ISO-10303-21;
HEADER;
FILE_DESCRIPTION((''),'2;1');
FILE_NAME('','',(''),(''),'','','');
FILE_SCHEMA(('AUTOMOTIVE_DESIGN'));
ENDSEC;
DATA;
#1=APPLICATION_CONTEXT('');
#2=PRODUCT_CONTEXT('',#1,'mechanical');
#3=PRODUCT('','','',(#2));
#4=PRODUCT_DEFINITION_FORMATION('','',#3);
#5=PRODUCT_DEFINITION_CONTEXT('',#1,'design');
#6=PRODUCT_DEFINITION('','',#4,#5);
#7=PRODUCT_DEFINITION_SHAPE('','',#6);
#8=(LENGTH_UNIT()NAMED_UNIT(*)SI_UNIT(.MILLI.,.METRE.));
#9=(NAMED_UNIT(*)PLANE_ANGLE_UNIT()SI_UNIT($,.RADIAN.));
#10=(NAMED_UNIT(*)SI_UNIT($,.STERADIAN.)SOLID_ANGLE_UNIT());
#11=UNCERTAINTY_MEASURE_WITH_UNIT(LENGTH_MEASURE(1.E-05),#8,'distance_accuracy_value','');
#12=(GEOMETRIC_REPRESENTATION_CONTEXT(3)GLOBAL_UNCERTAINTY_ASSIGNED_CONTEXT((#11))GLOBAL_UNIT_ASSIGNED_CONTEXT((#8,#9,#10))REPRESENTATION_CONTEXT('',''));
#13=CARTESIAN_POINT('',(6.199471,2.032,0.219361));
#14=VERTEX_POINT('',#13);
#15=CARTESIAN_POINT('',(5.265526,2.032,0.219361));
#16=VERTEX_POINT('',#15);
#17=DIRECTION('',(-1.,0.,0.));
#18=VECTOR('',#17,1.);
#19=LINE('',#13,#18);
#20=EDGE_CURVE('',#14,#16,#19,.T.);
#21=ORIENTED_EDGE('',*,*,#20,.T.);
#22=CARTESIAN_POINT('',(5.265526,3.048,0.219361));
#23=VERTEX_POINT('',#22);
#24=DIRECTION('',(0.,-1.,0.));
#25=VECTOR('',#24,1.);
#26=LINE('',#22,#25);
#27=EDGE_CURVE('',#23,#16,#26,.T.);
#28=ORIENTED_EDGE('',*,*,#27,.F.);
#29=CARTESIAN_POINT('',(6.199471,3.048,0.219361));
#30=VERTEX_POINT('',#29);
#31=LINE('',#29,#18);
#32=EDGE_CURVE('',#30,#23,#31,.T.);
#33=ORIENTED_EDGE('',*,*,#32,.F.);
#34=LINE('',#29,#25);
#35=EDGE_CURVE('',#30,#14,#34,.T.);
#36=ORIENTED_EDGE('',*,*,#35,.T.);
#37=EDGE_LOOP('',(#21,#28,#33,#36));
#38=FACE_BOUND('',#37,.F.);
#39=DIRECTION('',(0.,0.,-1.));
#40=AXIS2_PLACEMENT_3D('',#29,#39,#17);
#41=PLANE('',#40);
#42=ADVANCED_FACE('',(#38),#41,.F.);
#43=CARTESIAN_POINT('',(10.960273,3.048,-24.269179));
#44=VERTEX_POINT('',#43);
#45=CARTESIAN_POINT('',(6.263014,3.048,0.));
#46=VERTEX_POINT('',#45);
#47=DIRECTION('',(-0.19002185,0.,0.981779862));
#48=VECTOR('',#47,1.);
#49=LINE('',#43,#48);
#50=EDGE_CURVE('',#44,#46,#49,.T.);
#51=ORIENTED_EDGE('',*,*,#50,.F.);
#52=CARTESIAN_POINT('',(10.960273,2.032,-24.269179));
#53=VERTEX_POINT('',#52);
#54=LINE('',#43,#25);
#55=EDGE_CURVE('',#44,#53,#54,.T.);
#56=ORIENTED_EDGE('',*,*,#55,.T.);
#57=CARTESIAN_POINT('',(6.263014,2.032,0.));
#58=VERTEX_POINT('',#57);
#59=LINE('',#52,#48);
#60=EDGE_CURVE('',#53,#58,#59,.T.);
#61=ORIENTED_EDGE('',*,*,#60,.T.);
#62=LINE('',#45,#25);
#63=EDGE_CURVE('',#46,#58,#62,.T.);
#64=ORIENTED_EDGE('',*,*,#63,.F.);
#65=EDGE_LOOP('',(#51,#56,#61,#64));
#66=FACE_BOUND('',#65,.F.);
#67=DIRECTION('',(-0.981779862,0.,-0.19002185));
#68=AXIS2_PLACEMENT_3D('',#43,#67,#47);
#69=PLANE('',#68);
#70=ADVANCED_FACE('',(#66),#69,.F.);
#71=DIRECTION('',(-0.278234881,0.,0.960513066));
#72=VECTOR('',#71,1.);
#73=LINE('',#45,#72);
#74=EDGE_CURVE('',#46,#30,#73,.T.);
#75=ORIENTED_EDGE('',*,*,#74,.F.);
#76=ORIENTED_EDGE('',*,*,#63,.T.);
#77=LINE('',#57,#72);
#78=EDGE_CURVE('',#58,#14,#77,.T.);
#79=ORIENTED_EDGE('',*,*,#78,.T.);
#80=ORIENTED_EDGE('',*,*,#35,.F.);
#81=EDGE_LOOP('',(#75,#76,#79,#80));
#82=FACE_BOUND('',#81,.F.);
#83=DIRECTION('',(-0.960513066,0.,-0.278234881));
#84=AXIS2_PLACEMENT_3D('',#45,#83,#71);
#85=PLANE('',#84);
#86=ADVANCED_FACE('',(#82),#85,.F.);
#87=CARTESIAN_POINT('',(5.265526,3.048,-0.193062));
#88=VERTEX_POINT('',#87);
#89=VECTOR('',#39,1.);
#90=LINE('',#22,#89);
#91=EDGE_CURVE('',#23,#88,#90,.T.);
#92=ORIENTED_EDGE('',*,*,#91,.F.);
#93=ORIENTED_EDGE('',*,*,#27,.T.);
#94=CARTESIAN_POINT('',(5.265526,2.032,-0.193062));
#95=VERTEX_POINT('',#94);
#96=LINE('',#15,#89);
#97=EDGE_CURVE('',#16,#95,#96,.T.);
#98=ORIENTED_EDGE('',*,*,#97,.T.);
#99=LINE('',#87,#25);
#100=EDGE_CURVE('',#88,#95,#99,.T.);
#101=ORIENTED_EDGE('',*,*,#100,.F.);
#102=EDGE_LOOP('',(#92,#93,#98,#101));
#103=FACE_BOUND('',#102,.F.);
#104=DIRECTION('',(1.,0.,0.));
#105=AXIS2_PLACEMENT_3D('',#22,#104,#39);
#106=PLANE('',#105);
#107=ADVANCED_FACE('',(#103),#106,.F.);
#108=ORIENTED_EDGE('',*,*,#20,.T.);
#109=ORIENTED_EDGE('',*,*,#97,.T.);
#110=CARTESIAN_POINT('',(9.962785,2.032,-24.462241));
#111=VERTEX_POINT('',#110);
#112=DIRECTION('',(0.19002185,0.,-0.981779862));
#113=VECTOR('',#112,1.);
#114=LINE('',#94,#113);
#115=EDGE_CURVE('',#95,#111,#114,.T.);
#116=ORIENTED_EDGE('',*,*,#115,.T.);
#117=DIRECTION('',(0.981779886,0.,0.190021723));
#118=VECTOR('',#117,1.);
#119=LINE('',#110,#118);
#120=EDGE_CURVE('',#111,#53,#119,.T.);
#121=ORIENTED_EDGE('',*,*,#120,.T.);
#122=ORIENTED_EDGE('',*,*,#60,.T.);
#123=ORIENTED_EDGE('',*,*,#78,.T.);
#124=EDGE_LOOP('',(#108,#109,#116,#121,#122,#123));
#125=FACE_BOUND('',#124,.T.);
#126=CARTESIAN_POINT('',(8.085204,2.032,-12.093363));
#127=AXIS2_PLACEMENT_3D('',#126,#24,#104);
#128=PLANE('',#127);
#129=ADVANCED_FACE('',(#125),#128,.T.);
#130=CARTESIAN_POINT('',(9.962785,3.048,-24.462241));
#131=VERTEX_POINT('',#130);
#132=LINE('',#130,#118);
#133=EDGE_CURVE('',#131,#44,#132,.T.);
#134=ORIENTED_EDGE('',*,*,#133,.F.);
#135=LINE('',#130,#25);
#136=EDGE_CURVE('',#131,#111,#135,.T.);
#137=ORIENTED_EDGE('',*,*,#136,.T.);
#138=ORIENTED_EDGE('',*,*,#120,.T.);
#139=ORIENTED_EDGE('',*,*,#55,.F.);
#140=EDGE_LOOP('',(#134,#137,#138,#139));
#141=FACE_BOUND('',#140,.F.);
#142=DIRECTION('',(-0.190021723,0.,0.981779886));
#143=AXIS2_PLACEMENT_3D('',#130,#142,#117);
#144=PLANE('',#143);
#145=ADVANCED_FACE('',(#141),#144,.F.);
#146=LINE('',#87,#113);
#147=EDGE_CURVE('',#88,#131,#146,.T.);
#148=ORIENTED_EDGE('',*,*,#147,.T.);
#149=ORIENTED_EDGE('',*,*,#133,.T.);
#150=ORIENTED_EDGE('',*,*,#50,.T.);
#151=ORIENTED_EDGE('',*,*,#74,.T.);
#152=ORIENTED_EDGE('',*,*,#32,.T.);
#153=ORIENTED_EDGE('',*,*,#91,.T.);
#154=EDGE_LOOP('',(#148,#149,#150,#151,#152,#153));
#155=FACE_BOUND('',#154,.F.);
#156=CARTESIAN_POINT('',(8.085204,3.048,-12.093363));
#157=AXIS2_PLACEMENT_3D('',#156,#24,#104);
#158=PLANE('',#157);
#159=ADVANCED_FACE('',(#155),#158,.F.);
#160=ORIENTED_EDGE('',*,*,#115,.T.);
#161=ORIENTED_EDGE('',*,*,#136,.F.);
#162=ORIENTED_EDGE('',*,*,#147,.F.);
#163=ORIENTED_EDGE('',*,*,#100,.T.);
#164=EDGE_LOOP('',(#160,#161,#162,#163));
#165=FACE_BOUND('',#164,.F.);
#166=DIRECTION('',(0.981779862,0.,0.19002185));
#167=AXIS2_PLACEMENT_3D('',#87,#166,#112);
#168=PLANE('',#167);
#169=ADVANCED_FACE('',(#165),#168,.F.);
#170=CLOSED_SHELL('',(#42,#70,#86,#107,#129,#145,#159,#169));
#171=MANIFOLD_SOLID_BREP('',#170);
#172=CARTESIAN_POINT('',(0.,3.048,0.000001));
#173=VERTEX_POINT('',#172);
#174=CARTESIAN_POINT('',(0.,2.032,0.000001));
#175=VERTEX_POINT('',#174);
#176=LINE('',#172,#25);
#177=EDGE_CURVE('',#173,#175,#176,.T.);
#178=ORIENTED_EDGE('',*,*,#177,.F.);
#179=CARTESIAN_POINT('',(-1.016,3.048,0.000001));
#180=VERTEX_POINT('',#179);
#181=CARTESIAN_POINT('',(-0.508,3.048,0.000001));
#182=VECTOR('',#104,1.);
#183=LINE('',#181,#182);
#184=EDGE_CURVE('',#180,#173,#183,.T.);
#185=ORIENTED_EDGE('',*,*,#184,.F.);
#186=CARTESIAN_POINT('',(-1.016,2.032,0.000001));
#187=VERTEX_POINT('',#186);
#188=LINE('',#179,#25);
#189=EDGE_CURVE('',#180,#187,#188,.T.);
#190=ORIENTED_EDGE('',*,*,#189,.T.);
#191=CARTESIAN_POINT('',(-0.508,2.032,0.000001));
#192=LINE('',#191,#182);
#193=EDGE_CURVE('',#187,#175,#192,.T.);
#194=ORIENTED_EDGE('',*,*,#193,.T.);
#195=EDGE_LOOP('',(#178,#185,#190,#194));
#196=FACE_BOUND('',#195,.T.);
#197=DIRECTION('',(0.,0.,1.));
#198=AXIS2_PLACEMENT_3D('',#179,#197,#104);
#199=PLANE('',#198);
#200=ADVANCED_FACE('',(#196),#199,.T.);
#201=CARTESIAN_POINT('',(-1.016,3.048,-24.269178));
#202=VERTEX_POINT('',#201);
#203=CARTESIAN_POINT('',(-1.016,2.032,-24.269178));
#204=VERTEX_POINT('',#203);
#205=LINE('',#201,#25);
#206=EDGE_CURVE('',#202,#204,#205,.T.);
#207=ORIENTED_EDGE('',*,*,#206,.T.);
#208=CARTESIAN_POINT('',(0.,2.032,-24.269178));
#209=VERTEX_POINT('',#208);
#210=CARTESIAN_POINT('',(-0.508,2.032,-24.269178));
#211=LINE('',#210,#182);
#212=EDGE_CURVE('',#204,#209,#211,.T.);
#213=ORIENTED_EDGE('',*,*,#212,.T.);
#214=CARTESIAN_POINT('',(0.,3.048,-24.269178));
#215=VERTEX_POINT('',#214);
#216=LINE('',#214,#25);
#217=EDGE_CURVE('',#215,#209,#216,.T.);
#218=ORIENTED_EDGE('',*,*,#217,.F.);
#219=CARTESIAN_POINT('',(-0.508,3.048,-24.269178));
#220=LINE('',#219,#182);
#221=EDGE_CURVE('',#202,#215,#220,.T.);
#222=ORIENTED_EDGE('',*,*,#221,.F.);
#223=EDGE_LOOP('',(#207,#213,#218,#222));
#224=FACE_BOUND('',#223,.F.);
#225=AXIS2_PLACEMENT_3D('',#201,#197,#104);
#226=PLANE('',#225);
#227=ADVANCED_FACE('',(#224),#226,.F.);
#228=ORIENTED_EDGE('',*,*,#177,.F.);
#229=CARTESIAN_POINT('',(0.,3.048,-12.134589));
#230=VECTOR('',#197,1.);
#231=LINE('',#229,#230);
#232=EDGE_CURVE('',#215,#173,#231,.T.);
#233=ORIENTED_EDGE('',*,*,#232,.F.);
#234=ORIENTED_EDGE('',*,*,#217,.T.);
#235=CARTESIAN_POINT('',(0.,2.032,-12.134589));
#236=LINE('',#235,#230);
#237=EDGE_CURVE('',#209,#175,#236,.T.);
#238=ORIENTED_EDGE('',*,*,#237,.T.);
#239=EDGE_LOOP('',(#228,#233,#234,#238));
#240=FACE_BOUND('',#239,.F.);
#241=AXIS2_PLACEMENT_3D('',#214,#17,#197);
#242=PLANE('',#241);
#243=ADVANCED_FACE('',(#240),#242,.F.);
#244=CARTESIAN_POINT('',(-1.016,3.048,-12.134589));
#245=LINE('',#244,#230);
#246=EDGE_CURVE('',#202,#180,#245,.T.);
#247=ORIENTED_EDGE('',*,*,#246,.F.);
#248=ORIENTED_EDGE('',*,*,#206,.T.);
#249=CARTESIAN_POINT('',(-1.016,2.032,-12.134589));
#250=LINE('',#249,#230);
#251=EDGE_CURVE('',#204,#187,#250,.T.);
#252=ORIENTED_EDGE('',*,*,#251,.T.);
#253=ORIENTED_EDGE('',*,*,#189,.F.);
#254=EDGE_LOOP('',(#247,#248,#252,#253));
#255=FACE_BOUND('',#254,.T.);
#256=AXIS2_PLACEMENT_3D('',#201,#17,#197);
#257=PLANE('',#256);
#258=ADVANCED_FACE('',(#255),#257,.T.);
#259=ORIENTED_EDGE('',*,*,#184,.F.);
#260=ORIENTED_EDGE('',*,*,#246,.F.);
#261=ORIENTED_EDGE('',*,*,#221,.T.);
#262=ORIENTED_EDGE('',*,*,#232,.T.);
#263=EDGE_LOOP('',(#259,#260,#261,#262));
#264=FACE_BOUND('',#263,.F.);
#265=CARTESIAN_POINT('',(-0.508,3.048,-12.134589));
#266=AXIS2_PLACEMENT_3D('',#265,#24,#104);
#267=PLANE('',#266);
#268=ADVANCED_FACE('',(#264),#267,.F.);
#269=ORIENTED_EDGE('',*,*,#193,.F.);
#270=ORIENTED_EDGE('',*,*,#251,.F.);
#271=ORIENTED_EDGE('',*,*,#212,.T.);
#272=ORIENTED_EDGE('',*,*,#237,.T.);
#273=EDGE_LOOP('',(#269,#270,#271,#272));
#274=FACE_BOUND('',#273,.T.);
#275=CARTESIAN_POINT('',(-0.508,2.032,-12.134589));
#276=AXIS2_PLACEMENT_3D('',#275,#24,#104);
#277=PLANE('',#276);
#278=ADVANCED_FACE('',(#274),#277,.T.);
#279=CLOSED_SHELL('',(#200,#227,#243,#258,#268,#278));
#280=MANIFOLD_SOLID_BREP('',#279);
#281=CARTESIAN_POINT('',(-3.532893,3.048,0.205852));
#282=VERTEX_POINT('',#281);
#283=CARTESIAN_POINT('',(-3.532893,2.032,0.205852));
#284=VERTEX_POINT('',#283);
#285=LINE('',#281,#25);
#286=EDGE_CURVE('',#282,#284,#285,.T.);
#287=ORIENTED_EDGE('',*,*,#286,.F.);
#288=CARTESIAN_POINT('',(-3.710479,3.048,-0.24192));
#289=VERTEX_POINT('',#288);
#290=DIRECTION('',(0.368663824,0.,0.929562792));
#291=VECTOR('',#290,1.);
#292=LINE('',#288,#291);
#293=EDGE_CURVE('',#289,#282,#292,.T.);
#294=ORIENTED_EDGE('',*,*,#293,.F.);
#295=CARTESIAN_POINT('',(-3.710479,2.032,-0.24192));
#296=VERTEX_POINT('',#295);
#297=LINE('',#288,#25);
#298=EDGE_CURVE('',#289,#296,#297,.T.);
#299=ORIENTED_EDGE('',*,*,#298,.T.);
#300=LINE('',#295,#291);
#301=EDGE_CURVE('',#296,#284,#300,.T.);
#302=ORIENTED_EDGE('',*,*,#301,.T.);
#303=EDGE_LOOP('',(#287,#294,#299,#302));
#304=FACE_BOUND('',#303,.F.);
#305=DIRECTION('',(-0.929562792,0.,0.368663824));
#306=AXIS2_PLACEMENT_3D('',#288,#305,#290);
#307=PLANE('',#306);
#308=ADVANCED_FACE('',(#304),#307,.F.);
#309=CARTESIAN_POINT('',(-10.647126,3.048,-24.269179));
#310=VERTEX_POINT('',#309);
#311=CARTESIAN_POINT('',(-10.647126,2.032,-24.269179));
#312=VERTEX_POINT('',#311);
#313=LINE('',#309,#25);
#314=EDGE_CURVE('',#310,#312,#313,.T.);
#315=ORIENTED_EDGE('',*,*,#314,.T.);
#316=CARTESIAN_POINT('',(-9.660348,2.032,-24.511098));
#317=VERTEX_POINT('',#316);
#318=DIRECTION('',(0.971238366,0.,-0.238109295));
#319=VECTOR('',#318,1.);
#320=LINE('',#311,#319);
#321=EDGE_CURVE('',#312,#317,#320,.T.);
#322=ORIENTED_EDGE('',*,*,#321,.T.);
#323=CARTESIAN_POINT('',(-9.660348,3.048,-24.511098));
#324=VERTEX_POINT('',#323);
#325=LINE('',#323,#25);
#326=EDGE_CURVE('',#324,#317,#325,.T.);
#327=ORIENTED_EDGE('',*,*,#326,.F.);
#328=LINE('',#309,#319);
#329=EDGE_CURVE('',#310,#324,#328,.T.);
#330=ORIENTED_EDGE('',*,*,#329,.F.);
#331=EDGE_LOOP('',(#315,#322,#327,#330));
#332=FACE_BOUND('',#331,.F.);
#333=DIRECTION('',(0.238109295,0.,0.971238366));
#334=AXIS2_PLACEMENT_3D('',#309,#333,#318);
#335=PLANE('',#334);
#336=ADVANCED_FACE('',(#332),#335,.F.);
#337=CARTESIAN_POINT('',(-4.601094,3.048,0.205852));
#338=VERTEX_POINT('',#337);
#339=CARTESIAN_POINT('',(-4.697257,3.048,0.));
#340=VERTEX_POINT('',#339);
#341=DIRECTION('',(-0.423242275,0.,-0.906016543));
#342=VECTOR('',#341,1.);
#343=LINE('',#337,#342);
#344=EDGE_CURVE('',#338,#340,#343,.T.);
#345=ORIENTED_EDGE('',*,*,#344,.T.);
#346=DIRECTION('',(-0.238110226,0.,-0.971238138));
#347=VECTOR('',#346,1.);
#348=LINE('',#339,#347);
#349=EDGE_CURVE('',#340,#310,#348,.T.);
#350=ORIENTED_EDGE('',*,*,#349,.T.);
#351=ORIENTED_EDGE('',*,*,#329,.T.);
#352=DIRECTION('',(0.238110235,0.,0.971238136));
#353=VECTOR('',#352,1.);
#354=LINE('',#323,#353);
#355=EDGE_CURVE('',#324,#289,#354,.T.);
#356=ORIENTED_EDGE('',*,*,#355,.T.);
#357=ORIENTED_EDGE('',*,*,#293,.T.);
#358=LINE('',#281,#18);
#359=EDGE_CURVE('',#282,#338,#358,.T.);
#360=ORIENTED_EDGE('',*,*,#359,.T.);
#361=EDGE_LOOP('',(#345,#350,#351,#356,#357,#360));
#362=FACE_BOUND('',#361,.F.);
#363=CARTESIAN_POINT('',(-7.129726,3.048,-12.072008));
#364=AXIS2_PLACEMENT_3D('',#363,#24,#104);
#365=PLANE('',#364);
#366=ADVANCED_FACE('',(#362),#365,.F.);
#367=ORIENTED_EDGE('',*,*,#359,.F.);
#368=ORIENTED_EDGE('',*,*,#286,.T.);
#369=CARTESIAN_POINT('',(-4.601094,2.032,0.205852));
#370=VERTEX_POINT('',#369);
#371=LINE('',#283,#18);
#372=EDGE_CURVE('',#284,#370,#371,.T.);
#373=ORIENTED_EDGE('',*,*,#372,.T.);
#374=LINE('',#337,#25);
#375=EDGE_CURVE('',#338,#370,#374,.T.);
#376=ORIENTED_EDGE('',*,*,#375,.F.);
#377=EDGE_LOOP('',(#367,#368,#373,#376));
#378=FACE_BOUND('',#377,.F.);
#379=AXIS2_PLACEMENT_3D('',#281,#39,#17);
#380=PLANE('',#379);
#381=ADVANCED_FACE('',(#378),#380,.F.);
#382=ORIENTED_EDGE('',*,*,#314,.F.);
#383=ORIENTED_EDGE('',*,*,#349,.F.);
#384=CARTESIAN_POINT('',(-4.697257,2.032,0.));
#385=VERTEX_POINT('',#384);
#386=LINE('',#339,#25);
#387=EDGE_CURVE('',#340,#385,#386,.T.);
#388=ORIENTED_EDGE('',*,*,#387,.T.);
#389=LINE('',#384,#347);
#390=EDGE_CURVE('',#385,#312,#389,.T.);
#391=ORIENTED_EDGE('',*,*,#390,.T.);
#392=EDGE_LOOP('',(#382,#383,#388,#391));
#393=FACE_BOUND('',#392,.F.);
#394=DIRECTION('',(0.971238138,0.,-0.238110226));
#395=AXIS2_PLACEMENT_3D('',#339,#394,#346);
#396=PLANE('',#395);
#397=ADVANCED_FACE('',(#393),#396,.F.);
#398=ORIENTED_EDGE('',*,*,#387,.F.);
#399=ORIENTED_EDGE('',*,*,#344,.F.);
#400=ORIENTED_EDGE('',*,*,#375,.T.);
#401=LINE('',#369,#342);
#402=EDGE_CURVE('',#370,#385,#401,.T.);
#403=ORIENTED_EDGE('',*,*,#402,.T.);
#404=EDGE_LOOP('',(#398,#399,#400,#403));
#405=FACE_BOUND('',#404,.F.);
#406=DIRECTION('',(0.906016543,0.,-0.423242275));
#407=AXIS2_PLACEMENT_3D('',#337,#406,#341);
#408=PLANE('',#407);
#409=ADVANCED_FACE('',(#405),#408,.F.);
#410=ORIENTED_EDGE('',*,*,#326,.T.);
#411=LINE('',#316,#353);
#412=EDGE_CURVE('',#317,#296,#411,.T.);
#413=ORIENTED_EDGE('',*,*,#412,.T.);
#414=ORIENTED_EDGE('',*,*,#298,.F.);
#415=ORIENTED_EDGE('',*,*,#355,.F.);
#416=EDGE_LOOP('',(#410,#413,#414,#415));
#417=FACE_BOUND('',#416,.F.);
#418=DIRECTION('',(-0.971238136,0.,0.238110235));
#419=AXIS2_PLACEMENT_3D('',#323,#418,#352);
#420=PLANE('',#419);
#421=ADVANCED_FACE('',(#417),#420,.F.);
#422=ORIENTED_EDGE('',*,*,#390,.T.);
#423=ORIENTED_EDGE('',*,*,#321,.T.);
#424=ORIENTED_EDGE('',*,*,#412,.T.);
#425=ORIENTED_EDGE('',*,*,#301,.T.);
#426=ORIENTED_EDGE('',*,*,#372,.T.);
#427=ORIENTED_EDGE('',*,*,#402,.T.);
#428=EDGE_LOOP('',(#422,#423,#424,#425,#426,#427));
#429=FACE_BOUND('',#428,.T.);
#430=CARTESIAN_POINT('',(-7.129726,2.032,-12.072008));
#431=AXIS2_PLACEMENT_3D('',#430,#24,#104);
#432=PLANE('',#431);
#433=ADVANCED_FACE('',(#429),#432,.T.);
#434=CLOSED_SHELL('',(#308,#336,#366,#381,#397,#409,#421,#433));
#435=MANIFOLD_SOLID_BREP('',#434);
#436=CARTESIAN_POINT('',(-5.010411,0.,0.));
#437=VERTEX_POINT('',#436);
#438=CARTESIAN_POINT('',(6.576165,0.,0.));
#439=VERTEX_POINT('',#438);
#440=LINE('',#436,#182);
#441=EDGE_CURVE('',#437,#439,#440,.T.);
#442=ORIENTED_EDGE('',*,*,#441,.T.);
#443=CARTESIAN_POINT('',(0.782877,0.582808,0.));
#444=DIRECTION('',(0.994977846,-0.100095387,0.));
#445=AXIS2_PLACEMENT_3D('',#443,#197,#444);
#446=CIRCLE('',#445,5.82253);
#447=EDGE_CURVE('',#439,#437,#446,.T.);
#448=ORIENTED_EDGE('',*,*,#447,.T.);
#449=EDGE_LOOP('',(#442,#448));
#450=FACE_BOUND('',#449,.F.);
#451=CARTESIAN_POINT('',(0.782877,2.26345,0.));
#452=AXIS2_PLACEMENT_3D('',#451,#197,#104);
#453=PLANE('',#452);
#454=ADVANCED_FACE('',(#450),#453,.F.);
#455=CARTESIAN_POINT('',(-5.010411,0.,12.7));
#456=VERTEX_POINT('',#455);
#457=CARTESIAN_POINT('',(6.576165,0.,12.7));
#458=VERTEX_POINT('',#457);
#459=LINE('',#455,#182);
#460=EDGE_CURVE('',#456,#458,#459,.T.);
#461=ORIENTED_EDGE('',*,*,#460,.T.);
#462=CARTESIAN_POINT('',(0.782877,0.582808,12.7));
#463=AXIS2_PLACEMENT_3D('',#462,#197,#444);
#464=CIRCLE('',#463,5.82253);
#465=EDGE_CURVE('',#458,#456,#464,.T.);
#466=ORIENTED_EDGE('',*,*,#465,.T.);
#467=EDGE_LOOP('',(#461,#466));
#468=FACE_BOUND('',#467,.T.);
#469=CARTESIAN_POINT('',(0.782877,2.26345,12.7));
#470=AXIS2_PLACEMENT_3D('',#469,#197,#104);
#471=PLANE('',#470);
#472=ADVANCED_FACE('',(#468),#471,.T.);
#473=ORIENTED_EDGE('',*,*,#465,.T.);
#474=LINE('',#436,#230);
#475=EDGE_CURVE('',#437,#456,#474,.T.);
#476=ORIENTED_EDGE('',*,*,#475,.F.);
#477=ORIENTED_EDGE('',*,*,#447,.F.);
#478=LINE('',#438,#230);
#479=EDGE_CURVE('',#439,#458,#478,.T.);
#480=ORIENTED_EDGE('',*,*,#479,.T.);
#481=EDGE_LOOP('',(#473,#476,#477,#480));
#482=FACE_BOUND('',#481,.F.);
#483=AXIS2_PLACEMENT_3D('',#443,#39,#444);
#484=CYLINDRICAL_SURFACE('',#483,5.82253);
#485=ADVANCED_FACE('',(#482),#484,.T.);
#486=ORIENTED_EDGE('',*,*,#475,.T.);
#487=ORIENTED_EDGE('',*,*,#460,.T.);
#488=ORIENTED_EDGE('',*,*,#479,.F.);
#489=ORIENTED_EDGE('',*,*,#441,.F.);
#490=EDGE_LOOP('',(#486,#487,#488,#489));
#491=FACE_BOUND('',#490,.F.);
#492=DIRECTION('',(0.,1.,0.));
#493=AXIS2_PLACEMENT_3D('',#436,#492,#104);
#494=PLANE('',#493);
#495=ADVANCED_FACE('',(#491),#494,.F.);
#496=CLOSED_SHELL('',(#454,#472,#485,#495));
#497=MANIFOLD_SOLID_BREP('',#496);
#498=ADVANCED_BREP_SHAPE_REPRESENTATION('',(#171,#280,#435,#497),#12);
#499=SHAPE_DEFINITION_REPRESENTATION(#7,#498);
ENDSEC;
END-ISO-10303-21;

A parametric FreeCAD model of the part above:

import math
import FreeCAD as App
import Part
import Sketcher
from FreeCAD import Vector
Q = App.Units.Quantity


def add_polygon(sketch, points):
    """Adds a closed chain of lines whose ends are joined by coincident constraints."""
    first, n = sketch.GeometryCount, len(points)
    for a, b in zip(points, points[1:] + points[:1]):
        sketch.addGeometry(Part.LineSegment(App.Vector(*a, 0), App.Vector(*b, 0)), False)
    for i in range(n):
        sketch.addConstraint(Sketcher.Constraint("Coincident", first + i, 2, first + (i + 1) % n, 1))

doc = App.newDocument("Part")
body = doc.addObject("PartDesign::Body", "Body")

# Sketch on XY plane
sketch1 = body.newObject("Sketcher::SketchObject", "Sketch")
sketch1.AttachmentSupport = (doc.getObject("XY_Plane"), [""])
sketch1.MapMode = "FlatFace"
sketch1.addGeometry([
    Part.LineSegment(Vector(-5.010411, 0, 0), Vector(6.576165, 0, 0)),
    Part.ArcOfCircle(Part.Circle(Vector(0.782877, 0.582808, 0), Vector(0, 0, 1), 5.82253), math.radians(-5.744663), math.radians(185.744663)),
], False)
sketch1.addConstraint([
    Sketcher.Constraint("Coincident", 0, 1, 1, 2),
    Sketcher.Constraint("Coincident", 1, 1, 0, 2),
    Sketcher.Constraint("Horizontal", 0),
    Sketcher.Constraint("PointOnObject", 0, 1, -1),
    Sketcher.Constraint("Radius", 1, 5.82253),
    Sketcher.Constraint("DistanceX", 0, 1, 0, 2, 11.586576),
    Sketcher.Constraint("DistanceX", 0, 1, -1, 1, 5.010411),
])
pad1 = body.newObject("PartDesign::Pad", "Pad")
pad1.Profile = sketch1
pad1.Length = Q("0.5 in")
body2 = doc.addObject("PartDesign::Body", "Body001")
body2.AllowCompound = True

# Sketch on XZ plane
sketch2 = body2.newObject("Sketcher::SketchObject", "Sketch001")
sketch2.AttachmentSupport = (doc.getObject("XZ_Plane001"), [""])
sketch2.MapMode = "FlatFace"
sketch2.AttachmentOffset = App.Placement(Vector(0, 0, -0.12 * 25.4), App.Rotation())
add_polygon(sketch2, [(10.960273, -24.269179), (6.263014, 0), (6.199471, 0.219361), (5.265526, 0.219361), (5.265526, -0.193062), (9.962785, -24.462241)])  # lines 0-5
add_polygon(sketch2, [(-1.016, 0), (-1.016, -24.269178), (0, -24.269178), (0, 0)])  # lines 6-9
add_polygon(sketch2, [(-4.601094, 0.205852), (-4.697257, 0), (-10.647126, -24.269179), (-9.660348, -24.511098), (-3.710479, -0.24192), (-3.532893, 0.205852)])  # lines 10-15
sketch2.addConstraint([
    Sketcher.Constraint("Horizontal", 2),
    Sketcher.Constraint("Vertical", 3),
    Sketcher.Constraint("Vertical", 6),
    Sketcher.Constraint("Horizontal", 7),
    Sketcher.Constraint("Vertical", 8),
    Sketcher.Constraint("Horizontal", 9),
    Sketcher.Constraint("Horizontal", 15),
    Sketcher.Constraint("Coincident", 8, 2, -1, 1),
    Sketcher.Constraint("PointOnObject", 0, 2, -1),
    Sketcher.Constraint("PointOnObject", 10, 2, -1),
    Sketcher.Constraint("DistanceX", 7, 1, 7, 2, Q("0.04 in")),
    Sketcher.Constraint("Distance", 5, Q("0.04 in")),
    Sketcher.Constraint("Distance", 12, Q("0.04 in")),
    Sketcher.Constraint("DistanceX", 15, 2, 15, 1, 1.068201),
    Sketcher.Constraint("Distance", 14, 0.481702),
    Sketcher.Constraint("DistanceY", 6, 2, 6, 1, 24.269179),
    Sketcher.Constraint("DistanceY", 12, 2, -1, 1, 24.511098),
    Sketcher.Constraint("DistanceY", 4, 2, 1, 2, 24.681602),
    Sketcher.Constraint("DistanceX", 11, 2, 5, 2, 21.607399),
    Sketcher.Constraint("Distance", 1, 0.228379),
    Sketcher.Constraint("DistanceX", 2, 2, 2, 1, 0.933945),
    Sketcher.Constraint("DistanceY", 3, 2, 3, 1, 0.412423),
    Sketcher.Constraint("DistanceX", -1, 1, 1, 2, 6.199471),
    Sketcher.Constraint("DistanceY", -1, 1, 1, 2, 0.219361),
    Sketcher.Constraint("DistanceY", 5, 2, -1, 1, 24.269179),
    Sketcher.Constraint("DistanceY", 11, 2, -1, 1, 24.269179),
    Sketcher.Constraint("DistanceX", 12, 2, -1, 1, 9.660348),
    Sketcher.Constraint("DistanceX", 13, 2, -1, 1, 3.710479),
    Sketcher.Constraint("DistanceY", 13, 2, -1, 1, 0.24192),
    Sketcher.Constraint("DistanceX", 11, 2, 10, 2, 5.949869),
    Sketcher.Constraint("DistanceY", 9, 2, 14, 2, 0.205852),
])
pad2 = body2.newObject("PartDesign::Pad", "Pad001")
pad2.Profile = sketch2
pad2.Length = Q("0.04 in")

doc.recompute()
